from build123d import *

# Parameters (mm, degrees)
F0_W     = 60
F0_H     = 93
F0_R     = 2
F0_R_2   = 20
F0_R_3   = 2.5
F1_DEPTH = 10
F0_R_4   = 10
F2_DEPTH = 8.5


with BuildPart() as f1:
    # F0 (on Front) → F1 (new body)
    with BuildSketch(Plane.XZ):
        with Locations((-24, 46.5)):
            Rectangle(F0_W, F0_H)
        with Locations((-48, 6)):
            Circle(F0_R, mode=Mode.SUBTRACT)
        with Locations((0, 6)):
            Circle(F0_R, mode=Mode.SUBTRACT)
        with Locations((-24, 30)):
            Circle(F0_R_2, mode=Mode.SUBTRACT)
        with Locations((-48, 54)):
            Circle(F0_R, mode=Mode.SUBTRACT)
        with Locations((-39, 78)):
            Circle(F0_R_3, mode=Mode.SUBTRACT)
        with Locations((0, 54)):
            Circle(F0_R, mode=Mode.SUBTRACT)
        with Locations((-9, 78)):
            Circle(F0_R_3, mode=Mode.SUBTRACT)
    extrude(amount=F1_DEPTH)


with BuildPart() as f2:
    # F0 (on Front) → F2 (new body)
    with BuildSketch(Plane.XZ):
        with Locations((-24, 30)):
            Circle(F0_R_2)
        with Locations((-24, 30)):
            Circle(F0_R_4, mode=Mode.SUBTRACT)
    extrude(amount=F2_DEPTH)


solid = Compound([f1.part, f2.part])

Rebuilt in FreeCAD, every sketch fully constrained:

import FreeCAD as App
import Part
import Sketcher

V = App.Vector

doc = App.newDocument("Part")
params = doc.addObject("Spreadsheet::Sheet", "Params")
for row, (alias, value) in enumerate([
    ("sketch1_diameter", "4 mm"),
    ("sketch1_diameter2", "40 mm"),
    ("sketch1_diameter3", "5 mm"),
    ("sketch1_width", "60 mm"),
    ("sketch1_height", "93 mm"),
    ("pad1_length", "10 mm"),
    ("sketch2_diameter", "40 mm"),
    ("sketch2_diameter2", "20 mm"),
    ("pad2_length", "8.5 mm"),
], start=1):
    params.set(f"A{row}", alias)
    params.set(f"B{row}", "=" + value)
    params.setAlias(f"B{row}", alias)

body = doc.addObject("PartDesign::Body", "Body")

sketch1 = body.newObject("Sketcher::SketchObject", "Sketch")
sketch1.AttachmentSupport = (doc.getObject("XZ_Plane"), [""])
sketch1.MapMode = "FlatFace"
sketch1.addGeometry([
    Part.LineSegment(V(-54, 93, 0), V(-54, 0, 0)),
    Part.LineSegment(V(-54, 0, 0), V(6, 0, 0)),
    Part.LineSegment(V(6, 0, 0), V(6, 93, 0)),
    Part.LineSegment(V(6, 93, 0), V(-54, 93, 0)),
    Part.Circle(V(-48, 6, 0), V(0, 0, 1), 2),
    Part.Circle(V(0, 6, 0), V(0, 0, 1), 2),
    Part.Circle(V(-24, 30, 0), V(0, 0, 1), 20),
    Part.Circle(V(-48, 54, 0), V(0, 0, 1), 2),
    Part.Circle(V(-39, 78, 0), V(0, 0, 1), 2.5),
    Part.Circle(V(0, 54, 0), V(0, 0, 1), 2),
    Part.Circle(V(-9, 78, 0), V(0, 0, 1), 2.5),
], False)
sketch1.addConstraint([
    Sketcher.Constraint("Coincident", 0, 2, 1, 1),
    Sketcher.Constraint("Coincident", 1, 2, 2, 1),
    Sketcher.Constraint("Coincident", 2, 2, 3, 1),
    Sketcher.Constraint("Coincident", 3, 2, 0, 1),
    Sketcher.Constraint("Vertical", 0),
    Sketcher.Constraint("Horizontal", 1),
    Sketcher.Constraint("Vertical", 2),
    Sketcher.Constraint("Horizontal", 3),
    Sketcher.Constraint("Equal", 4, 5),
    Sketcher.Constraint("Equal", 5, 7),
    Sketcher.Constraint("Equal", 7, 9),
    Sketcher.Constraint("Equal", 8, 10),
    Sketcher.Constraint("PointOnObject", 5, 3, -2),
    Sketcher.Constraint("PointOnObject", 9, 3, -2),
    Sketcher.Constraint("PointOnObject", 0, 2, -1),
    Sketcher.Constraint("Horizontal", 4, 3, 5, 3),
    Sketcher.Constraint("Horizontal", 7, 3, 9, 3),
    Sketcher.Constraint("Horizontal", 8, 3, 10, 3),
    Sketcher.Constraint("Vertical", 4, 3, 7, 3),
    Sketcher.Constraint("Diameter", 4, 4.0),
    Sketcher.Constraint("Diameter", 6, 40.0),
    Sketcher.Constraint("Diameter", 8, 5.0),
    Sketcher.Constraint("DistanceX", 1, 1, 1, 2, 60.0),
    Sketcher.Constraint("DistanceY", 0, 2, 0, 1, 93.0),
    Sketcher.Constraint("DistanceX", 4, 3, -1, 1, 48.0),
    Sketcher.Constraint("DistanceY", -1, 1, 4, 3, 6.0),
    Sketcher.Constraint("DistanceX", 6, 3, -1, 1, 24.0),
    Sketcher.Constraint("DistanceY", -1, 1, 6, 3, 30.0),
    Sketcher.Constraint("DistanceY", -1, 1, 7, 3, 54.0),
    Sketcher.Constraint("DistanceX", 8, 3, -1, 1, 39.0),
    Sketcher.Constraint("DistanceY", -1, 1, 8, 3, 78.0),
    Sketcher.Constraint("DistanceX", 10, 3, -1, 1, 9.0),
    Sketcher.Constraint("DistanceX", 0, 2, -1, 1, 54.0),
])
sketch1.setExpression("Constraints[19]", "Params.sketch1_diameter")
sketch1.setExpression("Constraints[20]", "Params.sketch1_diameter2")
sketch1.setExpression("Constraints[21]", "Params.sketch1_diameter3")
sketch1.setExpression("Constraints[22]", "Params.sketch1_width")
sketch1.setExpression("Constraints[23]", "Params.sketch1_height")
pad1 = body.newObject("PartDesign::Pad", "Pad")
pad1.Profile = sketch1
pad1.setExpression("Length", "Params.pad1_length")
body2 = doc.addObject("PartDesign::Body", "Body001")

sketch2 = body2.newObject("Sketcher::SketchObject", "Sketch001")
sketch2.AttachmentSupport = (doc.getObject("XZ_Plane001"), [""])
sketch2.MapMode = "FlatFace"
sketch2.addGeometry([
    Part.Circle(V(-24, 30, 0), V(0, 0, 1), 20),
    Part.Circle(V(-24, 30, 0), V(0, 0, 1), 10),
], False)
sketch2.addConstraint([
    Sketcher.Constraint("Coincident", 1, 3, 0, 3),
    Sketcher.Constraint("Diameter", 0, 40.0),
    Sketcher.Constraint("Diameter", 1, 20.0),
    Sketcher.Constraint("DistanceX", 0, 3, -1, 1, 24.0),
    Sketcher.Constraint("DistanceY", -1, 1, 0, 3, 30.0),
])
sketch2.setExpression("Constraints[1]", "Params.sketch2_diameter")
sketch2.setExpression("Constraints[2]", "Params.sketch2_diameter2")
pad2 = body2.newObject("PartDesign::Pad", "Pad001")
pad2.Profile = sketch2
pad2.setExpression("Length", "Params.pad2_length")

doc.recompute()
